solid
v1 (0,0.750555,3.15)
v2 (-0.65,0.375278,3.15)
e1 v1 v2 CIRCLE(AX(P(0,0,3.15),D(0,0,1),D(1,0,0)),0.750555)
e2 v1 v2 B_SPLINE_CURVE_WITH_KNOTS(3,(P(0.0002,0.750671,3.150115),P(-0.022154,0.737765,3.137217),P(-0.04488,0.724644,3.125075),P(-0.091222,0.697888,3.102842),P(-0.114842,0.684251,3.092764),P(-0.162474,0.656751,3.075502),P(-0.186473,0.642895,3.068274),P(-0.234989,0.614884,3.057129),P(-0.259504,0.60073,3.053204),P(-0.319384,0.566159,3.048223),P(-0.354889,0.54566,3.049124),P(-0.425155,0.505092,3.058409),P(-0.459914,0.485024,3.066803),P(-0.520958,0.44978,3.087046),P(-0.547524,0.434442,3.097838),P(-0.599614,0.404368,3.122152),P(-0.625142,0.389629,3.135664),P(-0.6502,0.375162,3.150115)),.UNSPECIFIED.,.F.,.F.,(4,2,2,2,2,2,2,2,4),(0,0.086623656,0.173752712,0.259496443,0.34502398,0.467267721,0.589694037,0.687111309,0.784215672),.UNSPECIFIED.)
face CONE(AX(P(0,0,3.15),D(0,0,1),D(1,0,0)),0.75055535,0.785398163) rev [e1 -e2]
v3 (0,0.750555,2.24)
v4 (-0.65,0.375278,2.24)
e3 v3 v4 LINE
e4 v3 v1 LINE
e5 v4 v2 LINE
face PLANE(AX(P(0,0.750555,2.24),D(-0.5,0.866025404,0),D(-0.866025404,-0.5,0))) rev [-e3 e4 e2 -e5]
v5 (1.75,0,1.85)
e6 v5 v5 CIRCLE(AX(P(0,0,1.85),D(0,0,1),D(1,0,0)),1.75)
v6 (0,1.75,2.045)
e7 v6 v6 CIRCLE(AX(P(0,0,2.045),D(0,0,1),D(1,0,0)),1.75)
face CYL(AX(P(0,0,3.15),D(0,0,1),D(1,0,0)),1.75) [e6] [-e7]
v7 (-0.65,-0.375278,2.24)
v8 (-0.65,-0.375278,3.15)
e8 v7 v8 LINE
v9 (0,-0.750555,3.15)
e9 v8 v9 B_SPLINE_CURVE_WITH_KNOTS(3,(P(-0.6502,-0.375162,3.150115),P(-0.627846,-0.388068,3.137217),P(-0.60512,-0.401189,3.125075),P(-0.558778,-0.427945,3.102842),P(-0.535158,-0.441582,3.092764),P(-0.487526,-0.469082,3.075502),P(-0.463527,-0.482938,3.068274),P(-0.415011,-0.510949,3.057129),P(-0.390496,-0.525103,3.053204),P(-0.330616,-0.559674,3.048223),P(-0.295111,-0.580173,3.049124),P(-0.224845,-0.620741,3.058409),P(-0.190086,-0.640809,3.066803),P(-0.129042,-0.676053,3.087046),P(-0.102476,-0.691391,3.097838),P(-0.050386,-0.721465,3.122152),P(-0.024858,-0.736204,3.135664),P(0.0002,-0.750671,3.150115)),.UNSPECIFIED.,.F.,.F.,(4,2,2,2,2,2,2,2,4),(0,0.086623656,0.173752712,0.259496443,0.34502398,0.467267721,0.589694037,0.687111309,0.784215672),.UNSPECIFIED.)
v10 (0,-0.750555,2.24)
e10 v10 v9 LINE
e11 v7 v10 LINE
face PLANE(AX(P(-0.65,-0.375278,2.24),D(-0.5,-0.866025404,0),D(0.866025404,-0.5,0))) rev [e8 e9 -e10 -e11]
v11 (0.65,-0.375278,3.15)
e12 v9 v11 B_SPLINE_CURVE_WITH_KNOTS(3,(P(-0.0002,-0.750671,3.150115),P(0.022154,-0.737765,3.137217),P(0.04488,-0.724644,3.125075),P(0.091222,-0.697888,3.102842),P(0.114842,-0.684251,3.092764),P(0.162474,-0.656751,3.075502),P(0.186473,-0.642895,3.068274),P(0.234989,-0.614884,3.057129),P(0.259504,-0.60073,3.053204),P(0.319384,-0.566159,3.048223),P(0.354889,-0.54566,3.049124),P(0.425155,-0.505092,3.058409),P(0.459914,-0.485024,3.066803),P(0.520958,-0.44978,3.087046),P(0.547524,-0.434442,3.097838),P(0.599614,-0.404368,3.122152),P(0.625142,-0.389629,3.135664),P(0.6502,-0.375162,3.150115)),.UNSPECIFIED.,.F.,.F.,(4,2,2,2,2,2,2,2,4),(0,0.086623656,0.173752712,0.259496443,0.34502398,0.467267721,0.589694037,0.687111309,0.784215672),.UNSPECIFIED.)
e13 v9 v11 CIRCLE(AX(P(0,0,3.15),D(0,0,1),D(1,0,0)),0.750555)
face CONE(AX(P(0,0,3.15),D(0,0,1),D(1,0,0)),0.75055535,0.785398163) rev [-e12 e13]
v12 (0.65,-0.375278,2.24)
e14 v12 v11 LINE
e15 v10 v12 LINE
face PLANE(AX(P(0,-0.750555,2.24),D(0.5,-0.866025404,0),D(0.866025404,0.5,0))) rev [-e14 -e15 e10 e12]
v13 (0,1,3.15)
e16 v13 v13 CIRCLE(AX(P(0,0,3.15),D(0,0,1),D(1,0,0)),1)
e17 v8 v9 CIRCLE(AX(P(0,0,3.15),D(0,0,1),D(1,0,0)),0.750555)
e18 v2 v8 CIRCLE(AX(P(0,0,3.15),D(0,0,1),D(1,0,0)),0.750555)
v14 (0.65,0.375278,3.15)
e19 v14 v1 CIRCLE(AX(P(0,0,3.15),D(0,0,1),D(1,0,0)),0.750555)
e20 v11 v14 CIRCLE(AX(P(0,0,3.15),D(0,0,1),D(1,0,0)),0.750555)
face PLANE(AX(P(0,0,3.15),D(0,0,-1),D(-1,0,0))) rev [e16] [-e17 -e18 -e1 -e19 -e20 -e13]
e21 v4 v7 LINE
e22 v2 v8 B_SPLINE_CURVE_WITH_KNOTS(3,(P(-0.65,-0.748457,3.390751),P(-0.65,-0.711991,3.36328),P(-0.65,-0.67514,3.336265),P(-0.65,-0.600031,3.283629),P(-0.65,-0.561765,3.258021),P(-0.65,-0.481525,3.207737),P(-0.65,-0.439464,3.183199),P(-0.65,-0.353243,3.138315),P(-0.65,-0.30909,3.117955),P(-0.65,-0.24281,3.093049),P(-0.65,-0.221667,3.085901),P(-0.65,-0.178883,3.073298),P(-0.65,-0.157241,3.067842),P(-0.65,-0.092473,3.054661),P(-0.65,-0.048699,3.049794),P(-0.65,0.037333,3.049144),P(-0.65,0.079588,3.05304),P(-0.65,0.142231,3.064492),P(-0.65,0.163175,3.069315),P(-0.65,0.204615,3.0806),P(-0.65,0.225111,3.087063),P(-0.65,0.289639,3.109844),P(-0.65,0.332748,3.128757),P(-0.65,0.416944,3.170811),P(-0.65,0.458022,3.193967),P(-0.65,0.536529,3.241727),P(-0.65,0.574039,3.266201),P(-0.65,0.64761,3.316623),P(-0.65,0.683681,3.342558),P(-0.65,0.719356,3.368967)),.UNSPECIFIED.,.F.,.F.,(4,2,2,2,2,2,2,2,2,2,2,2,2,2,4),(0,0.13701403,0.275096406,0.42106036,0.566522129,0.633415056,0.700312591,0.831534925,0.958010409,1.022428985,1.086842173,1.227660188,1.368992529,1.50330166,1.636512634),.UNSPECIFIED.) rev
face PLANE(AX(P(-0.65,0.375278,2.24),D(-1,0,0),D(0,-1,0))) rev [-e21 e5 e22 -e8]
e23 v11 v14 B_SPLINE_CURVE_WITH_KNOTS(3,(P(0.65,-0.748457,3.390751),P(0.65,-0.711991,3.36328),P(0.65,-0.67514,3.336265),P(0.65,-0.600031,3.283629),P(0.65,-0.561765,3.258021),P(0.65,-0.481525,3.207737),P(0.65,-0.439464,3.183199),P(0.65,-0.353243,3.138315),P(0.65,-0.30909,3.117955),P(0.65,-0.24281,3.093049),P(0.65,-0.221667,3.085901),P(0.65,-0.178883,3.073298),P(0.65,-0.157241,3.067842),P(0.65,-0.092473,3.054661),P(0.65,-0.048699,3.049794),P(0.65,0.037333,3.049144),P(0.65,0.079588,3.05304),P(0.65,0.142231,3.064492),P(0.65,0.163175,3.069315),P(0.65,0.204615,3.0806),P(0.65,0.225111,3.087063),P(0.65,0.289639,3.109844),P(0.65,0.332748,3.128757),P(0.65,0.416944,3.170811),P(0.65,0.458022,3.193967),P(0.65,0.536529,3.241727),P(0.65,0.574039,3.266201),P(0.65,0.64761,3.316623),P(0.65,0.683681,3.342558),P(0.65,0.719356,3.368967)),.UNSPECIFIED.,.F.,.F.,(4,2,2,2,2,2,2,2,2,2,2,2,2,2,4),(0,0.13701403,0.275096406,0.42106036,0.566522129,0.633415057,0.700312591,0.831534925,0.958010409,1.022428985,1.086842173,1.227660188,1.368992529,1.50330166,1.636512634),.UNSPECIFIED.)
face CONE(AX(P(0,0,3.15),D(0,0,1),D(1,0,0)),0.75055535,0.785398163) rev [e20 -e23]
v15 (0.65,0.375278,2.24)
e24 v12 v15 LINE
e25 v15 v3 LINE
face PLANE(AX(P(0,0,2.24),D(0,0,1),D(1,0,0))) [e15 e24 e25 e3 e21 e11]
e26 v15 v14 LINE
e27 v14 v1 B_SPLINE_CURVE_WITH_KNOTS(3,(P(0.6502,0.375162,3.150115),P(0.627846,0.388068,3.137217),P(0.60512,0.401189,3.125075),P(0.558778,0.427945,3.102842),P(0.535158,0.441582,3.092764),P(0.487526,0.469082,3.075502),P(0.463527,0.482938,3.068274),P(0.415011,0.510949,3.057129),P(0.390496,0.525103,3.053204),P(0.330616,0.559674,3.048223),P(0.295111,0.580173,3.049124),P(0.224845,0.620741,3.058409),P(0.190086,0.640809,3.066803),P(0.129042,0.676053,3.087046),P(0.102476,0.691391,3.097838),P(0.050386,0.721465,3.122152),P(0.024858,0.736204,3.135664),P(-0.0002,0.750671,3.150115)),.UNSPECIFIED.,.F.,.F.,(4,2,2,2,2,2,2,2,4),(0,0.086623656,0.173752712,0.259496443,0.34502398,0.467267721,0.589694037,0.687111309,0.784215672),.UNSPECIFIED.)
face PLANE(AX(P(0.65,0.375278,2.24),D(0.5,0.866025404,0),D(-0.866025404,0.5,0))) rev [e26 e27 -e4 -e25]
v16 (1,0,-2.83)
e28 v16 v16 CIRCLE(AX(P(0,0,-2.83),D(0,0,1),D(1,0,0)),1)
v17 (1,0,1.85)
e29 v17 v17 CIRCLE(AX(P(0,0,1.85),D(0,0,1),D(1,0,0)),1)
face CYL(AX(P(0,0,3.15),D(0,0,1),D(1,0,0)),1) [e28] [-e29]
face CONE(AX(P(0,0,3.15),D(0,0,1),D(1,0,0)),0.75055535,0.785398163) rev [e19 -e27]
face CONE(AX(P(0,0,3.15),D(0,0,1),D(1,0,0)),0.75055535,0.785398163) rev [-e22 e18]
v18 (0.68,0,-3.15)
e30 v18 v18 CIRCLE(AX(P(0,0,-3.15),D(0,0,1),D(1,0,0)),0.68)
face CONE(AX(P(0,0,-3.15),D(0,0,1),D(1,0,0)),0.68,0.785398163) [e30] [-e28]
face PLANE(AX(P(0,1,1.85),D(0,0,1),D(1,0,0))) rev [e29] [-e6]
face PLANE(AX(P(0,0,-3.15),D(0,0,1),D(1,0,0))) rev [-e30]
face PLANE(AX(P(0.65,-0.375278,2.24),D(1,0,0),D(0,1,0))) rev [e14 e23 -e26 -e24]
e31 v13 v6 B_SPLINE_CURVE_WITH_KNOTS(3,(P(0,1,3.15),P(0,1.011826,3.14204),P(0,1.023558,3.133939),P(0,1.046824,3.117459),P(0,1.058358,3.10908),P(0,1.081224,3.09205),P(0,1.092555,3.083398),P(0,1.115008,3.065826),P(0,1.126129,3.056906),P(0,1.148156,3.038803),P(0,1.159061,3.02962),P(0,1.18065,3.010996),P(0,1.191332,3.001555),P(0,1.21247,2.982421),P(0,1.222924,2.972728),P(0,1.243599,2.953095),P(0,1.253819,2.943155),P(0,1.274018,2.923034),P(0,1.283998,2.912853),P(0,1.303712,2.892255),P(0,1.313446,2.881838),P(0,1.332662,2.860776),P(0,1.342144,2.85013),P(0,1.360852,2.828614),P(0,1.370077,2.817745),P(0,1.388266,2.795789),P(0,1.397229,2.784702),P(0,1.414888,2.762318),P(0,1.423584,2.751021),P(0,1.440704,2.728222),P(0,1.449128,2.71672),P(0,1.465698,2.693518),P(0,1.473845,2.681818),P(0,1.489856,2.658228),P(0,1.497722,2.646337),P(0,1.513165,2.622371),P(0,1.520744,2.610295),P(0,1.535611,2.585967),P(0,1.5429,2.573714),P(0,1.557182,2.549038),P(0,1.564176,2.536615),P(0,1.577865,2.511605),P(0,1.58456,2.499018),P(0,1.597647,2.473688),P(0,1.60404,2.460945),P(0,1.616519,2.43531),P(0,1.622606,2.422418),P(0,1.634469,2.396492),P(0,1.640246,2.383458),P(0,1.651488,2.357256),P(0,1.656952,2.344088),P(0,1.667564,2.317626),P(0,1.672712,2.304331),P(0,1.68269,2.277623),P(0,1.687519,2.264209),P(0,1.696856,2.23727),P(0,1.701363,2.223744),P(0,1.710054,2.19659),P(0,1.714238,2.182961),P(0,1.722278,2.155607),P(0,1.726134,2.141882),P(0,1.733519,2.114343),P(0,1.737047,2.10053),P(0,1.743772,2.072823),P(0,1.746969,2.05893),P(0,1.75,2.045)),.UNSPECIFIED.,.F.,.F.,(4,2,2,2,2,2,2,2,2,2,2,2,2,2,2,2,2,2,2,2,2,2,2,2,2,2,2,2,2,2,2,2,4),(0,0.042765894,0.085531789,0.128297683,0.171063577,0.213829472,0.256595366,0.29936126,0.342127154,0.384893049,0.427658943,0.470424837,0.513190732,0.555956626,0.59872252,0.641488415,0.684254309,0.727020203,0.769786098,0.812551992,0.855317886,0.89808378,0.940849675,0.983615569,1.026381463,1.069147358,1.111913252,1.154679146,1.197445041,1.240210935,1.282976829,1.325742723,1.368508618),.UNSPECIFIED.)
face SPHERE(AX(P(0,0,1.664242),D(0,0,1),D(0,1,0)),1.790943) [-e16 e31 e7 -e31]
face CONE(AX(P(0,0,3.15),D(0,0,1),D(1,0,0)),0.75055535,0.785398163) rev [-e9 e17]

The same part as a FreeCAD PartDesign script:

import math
import FreeCAD as App
import Part
import Sketcher

V = App.Vector
Q = App.Units.Quantity

doc = App.newDocument("Part")
body = doc.addObject("PartDesign::Body", "Body")

# Sketch on YZ plane
sketch1 = doc.addObject("Sketcher::SketchObject", "Sketch")
body.addObject(sketch1)
sketch1.AttachmentSupport = (doc.YZ_Plane, [""])
sketch1.MapMode = "FlatFace"
sketch1.addGeometry(Part.LineSegment(V(0, 3.15, 0), V(0, -3.15, 0)), False)
sketch1.addGeometry(Part.LineSegment(V(0, -3.15, 0), V(0.68, -3.15, 0)), False)
sketch1.addGeometry(Part.LineSegment(V(0.68, -3.15, 0), V(1, -2.83, 0)), False)
sketch1.addGeometry(Part.LineSegment(V(1, -2.83, 0), V(1, 1.85, 0)), False)
sketch1.addGeometry(Part.LineSegment(V(1, 1.85, 0), V(1.75, 1.85, 0)), False)
sketch1.addGeometry(Part.LineSegment(V(1.75, 1.85, 0), V(1.75, 2.045, 0)), False)
sketch1.addGeometry(Part.ArcOfCircle(Part.Circle(V(0, 1.664242, 0), V(0, 0, 1), 1.790943), math.radians(12.274875), math.radians(56.057192)), False)
sketch1.addGeometry(Part.LineSegment(V(1, 3.15, 0), V(0, 3.15, 0)), False)
sketch1.addConstraint(Sketcher.Constraint("Coincident", 0, 2, 1, 1))
sketch1.addConstraint(Sketcher.Constraint("Coincident", 1, 2, 2, 1))
sketch1.addConstraint(Sketcher.Constraint("Coincident", 2, 2, 3, 1))
sketch1.addConstraint(Sketcher.Constraint("Coincident", 3, 2, 4, 1))
sketch1.addConstraint(Sketcher.Constraint("Coincident", 4, 2, 5, 1))
sketch1.addConstraint(Sketcher.Constraint("Coincident", 5, 2, 6, 1))
sketch1.addConstraint(Sketcher.Constraint("Coincident", 6, 2, 7, 1))
sketch1.addConstraint(Sketcher.Constraint("Coincident", 7, 2, 0, 1))
sketch1.addConstraint(Sketcher.Constraint("Vertical", 0))
sketch1.addConstraint(Sketcher.Constraint("Horizontal", 1))
sketch1.addConstraint(Sketcher.Constraint("Vertical", 3))
sketch1.addConstraint(Sketcher.Constraint("Horizontal", 4))
sketch1.addConstraint(Sketcher.Constraint("Vertical", 5))
sketch1.addConstraint(Sketcher.Constraint("Horizontal", 7))
sketch1.addConstraint(Sketcher.Constraint("Symmetric", 0, 2, 7, 2, -1, 1))
sketch1.addConstraint(Sketcher.Constraint("PointOnObject", 6, 3, -2))
sketch1.addConstraint(Sketcher.Constraint("Vertical", 3, 2, 6, 2))
sketch1.addConstraint(Sketcher.Constraint("DistanceX", 7, 2, 7, 1, 1.0))
sketch1.addConstraint(Sketcher.Constraint("Angle", 2, Q("45 deg")))
sketch1.addConstraint(Sketcher.Constraint("DistanceY", 0, 2, 0, 1, 6.3))
sketch1.addConstraint(Sketcher.Constraint("DistanceY", 1, 2, 3, 2, 5.0))
sketch1.addConstraint(Sketcher.Constraint("DistanceX", 1, 1, 1, 2, 0.68))
sketch1.addConstraint(Sketcher.Constraint("DistanceX", 4, 1, 4, 2, 0.75))
sketch1.addConstraint(Sketcher.Constraint("DistanceY", 5, 1, 5, 2, 0.195))
revolution = doc.addObject("PartDesign::Revolution", "Revolution")
body.addObject(revolution)
revolution.Profile = sketch1
revolution.ReferenceAxis = (sketch1, ["V_Axis"])
revolution.Angle = 360

# Sketch on XY plane
sketch2 = doc.addObject("Sketcher::SketchObject", "Sketch001")
body.addObject(sketch2)
sketch2.AttachmentSupport = (doc.XY_Plane, [""])
sketch2.MapMode = "FlatFace"
sketch2.AttachmentOffset = App.Placement(V(0, 0, 3.15), App.Rotation())
sketch2.addGeometry(Part.LineSegment(V(0, 0.750555, 0), V(-0.65, 0.375278, 0)), False)
sketch2.addGeometry(Part.LineSegment(V(-0.65, 0.375278, 0), V(-0.65, -0.375278, 0)), False)
sketch2.addGeometry(Part.LineSegment(V(-0.65, -0.375278, 0), V(0, -0.750555, 0)), False)
sketch2.addGeometry(Part.LineSegment(V(0, -0.750555, 0), V(0.65, -0.375278, 0)), False)
sketch2.addGeometry(Part.LineSegment(V(0.65, -0.375278, 0), V(0.65, 0.375278, 0)), False)
sketch2.addGeometry(Part.LineSegment(V(0.65, 0.375278, 0), V(0, 0.750555, 0)), False)
sketch2.addConstraint(Sketcher.Constraint("Coincident", 0, 2, 1, 1))
sketch2.addConstraint(Sketcher.Constraint("Coincident", 1, 2, 2, 1))
sketch2.addConstraint(Sketcher.Constraint("Coincident", 2, 2, 3, 1))
sketch2.addConstraint(Sketcher.Constraint("Coincident", 3, 2, 4, 1))
sketch2.addConstraint(Sketcher.Constraint("Coincident", 4, 2, 5, 1))
sketch2.addConstraint(Sketcher.Constraint("Coincident", 5, 2, 0, 1))
sketch2.addConstraint(Sketcher.Constraint("Vertical", 1))
sketch2.addConstraint(Sketcher.Constraint("Vertical", 4))
sketch2.addConstraint(Sketcher.Constraint("Symmetric", 0, 2, 3, 2, -1, 1))
sketch2.addConstraint(Sketcher.Constraint("Symmetric", 2, 2, 5, 2, -1, 1))
sketch2.addConstraint(Sketcher.Constraint("PointOnObject", 2, 2, -2))
sketch2.addConstraint(Sketcher.Constraint("Parallel", 2, 5))
sketch2.addConstraint(Sketcher.Constraint("Horizontal", 1, 2, 3, 2))
sketch2.addConstraint(Sketcher.Constraint("Angle", 0, Q("-150 deg")))
sketch2.addConstraint(Sketcher.Constraint("DistanceX", 1, 2, 3, 2, 1.3))
sketch2.addConstraint(Sketcher.Constraint("DistanceY", 1, 2, 1, 1, 0.750555))
pocket1 = doc.addObject("PartDesign::Pocket", "Pocket")
body.addObject(pocket1)
pocket1.Profile = sketch2
pocket1.Length = 0.91

# Sketch on YZ plane
sketch3 = doc.addObject("Sketcher::SketchObject", "Sketch002")
body.addObject(sketch3)
sketch3.AttachmentSupport = (doc.YZ_Plane, [""])
sketch3.MapMode = "FlatFace"
sketch3.addGeometry(Part.LineSegment(V(0, 3.15, 0), V(-0.750555, 3.15, 0)), False)
sketch3.addGeometry(Part.LineSegment(V(-0.750555, 3.15, 0), V(0, 2.399445, 0)), False)
sketch3.addGeometry(Part.LineSegment(V(0, 2.399445, 0), V(0, 3.15, 0)), False)
sketch3.addConstraint(Sketcher.Constraint("Coincident", 0, 2, 1, 1))
sketch3.addConstraint(Sketcher.Constraint("Coincident", 1, 2, 2, 1))
sketch3.addConstraint(Sketcher.Constraint("Coincident", 2, 2, 0, 1))
sketch3.addConstraint(Sketcher.Constraint("Horizontal", 0))
sketch3.addConstraint(Sketcher.Constraint("Vertical", 2))
sketch3.addConstraint(Sketcher.Constraint("PointOnObject", 1, 2, -2))
sketch3.addConstraint(Sketcher.Constraint("Equal", 0, 2))
sketch3.addConstraint(Sketcher.Constraint("DistanceY", -1, 1, 0, 2, 3.15))
sketch3.addConstraint(Sketcher.Constraint("DistanceX", 0, 2, 0, 1, 0.750555))
groove = doc.addObject("PartDesign::Groove", "Groove")
body.addObject(groove)
groove.Profile = sketch3
groove.ReferenceAxis = (sketch3, ["V_Axis"])
groove.Angle = 360

doc.recompute()
